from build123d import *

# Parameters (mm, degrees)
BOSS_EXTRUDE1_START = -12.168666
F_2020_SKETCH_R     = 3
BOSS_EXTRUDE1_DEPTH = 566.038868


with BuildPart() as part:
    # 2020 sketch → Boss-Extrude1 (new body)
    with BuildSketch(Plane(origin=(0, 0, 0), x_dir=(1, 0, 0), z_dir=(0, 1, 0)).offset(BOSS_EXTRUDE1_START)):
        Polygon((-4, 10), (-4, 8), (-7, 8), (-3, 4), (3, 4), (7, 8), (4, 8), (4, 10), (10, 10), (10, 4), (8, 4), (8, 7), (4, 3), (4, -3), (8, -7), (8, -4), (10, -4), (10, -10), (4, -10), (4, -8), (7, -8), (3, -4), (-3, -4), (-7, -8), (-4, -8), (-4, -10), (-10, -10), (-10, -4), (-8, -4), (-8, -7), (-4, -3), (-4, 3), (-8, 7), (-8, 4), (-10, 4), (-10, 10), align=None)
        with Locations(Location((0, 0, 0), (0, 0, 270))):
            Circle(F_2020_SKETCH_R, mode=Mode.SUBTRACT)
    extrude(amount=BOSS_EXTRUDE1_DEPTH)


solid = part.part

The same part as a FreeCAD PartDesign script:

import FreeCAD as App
import Part
import Sketcher
from FreeCAD import Vector
Q = App.Units.Quantity

doc = App.newDocument("Part")
body = doc.addObject("PartDesign::Body", "Body")

# Sketch on XZ plane
sketch1 = body.newObject("Sketcher::SketchObject", "Sketch")
sketch1.AttachmentSupport = (doc.getObject("XZ_Plane"), [""])
sketch1.MapMode = "FlatFace"
sketch1.AttachmentOffset = App.Placement(Vector(0, 0, 12.168666), App.Rotation())
sketch1.addGeometry([
    Part.LineSegment(Vector(-4, -8, 0), Vector(-4, -10, 0)),  # 0
    Part.LineSegment(Vector(-4, -10, 0), Vector(-10, -10, 0)),  # 1
    Part.LineSegment(Vector(-10, -10, 0), Vector(-10, -4, 0)),  # 2
    Part.LineSegment(Vector(-10, -4, 0), Vector(-8, -4, 0)),  # 3
    Part.LineSegment(Vector(-8, -4, 0), Vector(-8, -7, 0)),  # 4
    Part.LineSegment(Vector(-8, -7, 0), Vector(-4, -3, 0)),  # 5
    Part.LineSegment(Vector(-4, -3, 0), Vector(-4, 3, 0)),  # 6
    Part.LineSegment(Vector(-4, 3, 0), Vector(-8, 7, 0)),  # 7
    Part.LineSegment(Vector(-8, 7, 0), Vector(-8, 4, 0)),  # 8
    Part.LineSegment(Vector(-8, 4, 0), Vector(-10, 4, 0)),  # 9
    Part.LineSegment(Vector(-10, 4, 0), Vector(-10, 10, 0)),  # 10
    Part.LineSegment(Vector(-10, 10, 0), Vector(-4, 10, 0)),  # 11
    Part.LineSegment(Vector(-4, 10, 0), Vector(-4, 8, 0)),  # 12
    Part.LineSegment(Vector(-4, 8, 0), Vector(-7, 8, 0)),  # 13
    Part.LineSegment(Vector(-7, 8, 0), Vector(-3, 4, 0)),  # 14
    Part.LineSegment(Vector(-3, 4, 0), Vector(3, 4, 0)),  # 15
    Part.LineSegment(Vector(3, 4, 0), Vector(7, 8, 0)),  # 16
    Part.LineSegment(Vector(7, 8, 0), Vector(4, 8, 0)),  # 17
    Part.LineSegment(Vector(4, 8, 0), Vector(4, 10, 0)),  # 18
    Part.LineSegment(Vector(4, 10, 0), Vector(10, 10, 0)),  # 19
    Part.LineSegment(Vector(10, 10, 0), Vector(10, 4, 0)),  # 20
    Part.LineSegment(Vector(10, 4, 0), Vector(8, 4, 0)),  # 21
    Part.LineSegment(Vector(8, 4, 0), Vector(8, 7, 0)),  # 22
    Part.LineSegment(Vector(8, 7, 0), Vector(4, 3, 0)),  # 23
    Part.LineSegment(Vector(4, 3, 0), Vector(4, -3, 0)),  # 24
    Part.LineSegment(Vector(4, -3, 0), Vector(8, -7, 0)),  # 25
    Part.LineSegment(Vector(8, -7, 0), Vector(8, -4, 0)),  # 26
    Part.LineSegment(Vector(8, -4, 0), Vector(10, -4, 0)),  # 27
    Part.LineSegment(Vector(10, -4, 0), Vector(10, -10, 0)),  # 28
    Part.LineSegment(Vector(10, -10, 0), Vector(4, -10, 0)),  # 29
    Part.LineSegment(Vector(4, -10, 0), Vector(4, -8, 0)),  # 30
    Part.LineSegment(Vector(4, -8, 0), Vector(7, -8, 0)),  # 31
    Part.LineSegment(Vector(7, -8, 0), Vector(3, -4, 0)),  # 32
    Part.LineSegment(Vector(3, -4, 0), Vector(-3, -4, 0)),  # 33
    Part.LineSegment(Vector(-3, -4, 0), Vector(-7, -8, 0)),  # 34
    Part.LineSegment(Vector(-7, -8, 0), Vector(-4, -8, 0)),  # 35
    Part.Circle(Vector(0, 0, 0), Vector(0, 0, 1), 3),  # 36
], False)
sketch1.addConstraint([
    Sketcher.Constraint("Coincident", 0, 2, 1, 1),
    Sketcher.Constraint("Coincident", 1, 2, 2, 1),
    Sketcher.Constraint("Coincident", 2, 2, 3, 1),
    Sketcher.Constraint("Coincident", 3, 2, 4, 1),
    Sketcher.Constraint("Coincident", 4, 2, 5, 1),
    Sketcher.Constraint("Coincident", 5, 2, 6, 1),
    Sketcher.Constraint("Coincident", 6, 2, 7, 1),
    Sketcher.Constraint("Coincident", 7, 2, 8, 1),
    Sketcher.Constraint("Coincident", 8, 2, 9, 1),
    Sketcher.Constraint("Coincident", 9, 2, 10, 1),
    Sketcher.Constraint("Coincident", 10, 2, 11, 1),
    Sketcher.Constraint("Coincident", 11, 2, 12, 1),
    Sketcher.Constraint("Coincident", 12, 2, 13, 1),
    Sketcher.Constraint("Coincident", 13, 2, 14, 1),
    Sketcher.Constraint("Coincident", 14, 2, 15, 1),
    Sketcher.Constraint("Coincident", 15, 2, 16, 1),
    Sketcher.Constraint("Coincident", 16, 2, 17, 1),
    Sketcher.Constraint("Coincident", 17, 2, 18, 1),
    Sketcher.Constraint("Coincident", 18, 2, 19, 1),
    Sketcher.Constraint("Coincident", 19, 2, 20, 1),
    Sketcher.Constraint("Coincident", 20, 2, 21, 1),
    Sketcher.Constraint("Coincident", 21, 2, 22, 1),
    Sketcher.Constraint("Coincident", 22, 2, 23, 1),
    Sketcher.Constraint("Coincident", 23, 2, 24, 1),
    Sketcher.Constraint("Coincident", 24, 2, 25, 1),
    Sketcher.Constraint("Coincident", 25, 2, 26, 1),
    Sketcher.Constraint("Coincident", 26, 2, 27, 1),
    Sketcher.Constraint("Coincident", 27, 2, 28, 1),
    Sketcher.Constraint("Coincident", 28, 2, 29, 1),
    Sketcher.Constraint("Coincident", 29, 2, 30, 1),
    Sketcher.Constraint("Coincident", 30, 2, 31, 1),
    Sketcher.Constraint("Coincident", 31, 2, 32, 1),
    Sketcher.Constraint("Coincident", 32, 2, 33, 1),
    Sketcher.Constraint("Coincident", 33, 2, 34, 1),
    Sketcher.Constraint("Coincident", 34, 2, 35, 1),
    Sketcher.Constraint("Coincident", 35, 2, 0, 1),
    Sketcher.Constraint("Vertical", 0),
    Sketcher.Constraint("Horizontal", 1),
    Sketcher.Constraint("Vertical", 2),
    Sketcher.Constraint("Horizontal", 3),
    Sketcher.Constraint("Vertical", 4),
    Sketcher.Constraint("Vertical", 6),
    Sketcher.Constraint("Vertical", 8),
    Sketcher.Constraint("Horizontal", 9),
    Sketcher.Constraint("Vertical", 10),
    Sketcher.Constraint("Horizontal", 11),
    Sketcher.Constraint("Vertical", 12),
    Sketcher.Constraint("Horizontal", 13),
    Sketcher.Constraint("Horizontal", 15),
    Sketcher.Constraint("Horizontal", 17),
    Sketcher.Constraint("Vertical", 18),
    Sketcher.Constraint("Horizontal", 19),
    Sketcher.Constraint("Vertical", 20),
    Sketcher.Constraint("Horizontal", 21),
    Sketcher.Constraint("Vertical", 22),
    Sketcher.Constraint("Vertical", 24),
    Sketcher.Constraint("Vertical", 26),
    Sketcher.Constraint("Horizontal", 27),
    Sketcher.Constraint("Vertical", 28),
    Sketcher.Constraint("Horizontal", 29),
    Sketcher.Constraint("Vertical", 30),
    Sketcher.Constraint("Horizontal", 31),
    Sketcher.Constraint("Horizontal", 33),
    Sketcher.Constraint("Horizontal", 35),
    Sketcher.Constraint("Coincident", 36, 3, -1, 1),
    Sketcher.Constraint("Symmetric", 0, 2, 18, 2, -1, 1),
    Sketcher.Constraint("Symmetric", 2, 2, 20, 2, -1, 1),
    Sketcher.Constraint("Symmetric", 4, 2, 22, 2, -1, 1),
    Sketcher.Constraint("Symmetric", 5, 2, 23, 2, -1, 1),
    Sketcher.Constraint("Symmetric", 7, 2, 25, 2, -1, 1),
    Sketcher.Constraint("Symmetric", 9, 2, 27, 2, -1, 1),
    Sketcher.Constraint("Symmetric", 11, 2, 29, 2, -1, 1),
    Sketcher.Constraint("Symmetric", 13, 2, 31, 2, -1, 1),
    Sketcher.Constraint("Symmetric", 14, 2, 32, 2, -1, 1),
    Sketcher.Constraint("Symmetric", 16, 2, 34, 2, -1, 1),
    Sketcher.Constraint("Symmetric", 13, 2, 16, 2, -2),
    Sketcher.Constraint("Symmetric", 11, 2, 18, 2, -2),
    Sketcher.Constraint("Symmetric", 9, 2, 20, 2, -2),
    Sketcher.Constraint("Symmetric", 7, 2, 22, 2, -2),
    Sketcher.Constraint("Perpendicular", 5, 7),
    Sketcher.Constraint("Parallel", 7, 14),
    Sketcher.Constraint("Perpendicular", 14, 16),
    Sketcher.Constraint("Perpendicular", 23, 25),
    Sketcher.Constraint("Perpendicular", 32, 34),
    Sketcher.Constraint("Horizontal", 9, 2, 14, 2),
    Sketcher.Constraint("Horizontal", 6, 2, 23, 2),
    Sketcher.Constraint("Vertical", 0, 2, 5, 2),
    Sketcher.Constraint("Equal", 11, 15),
    Sketcher.Constraint("Equal", 27, 0),
    Sketcher.Constraint("Equal", 33, 2),
    Sketcher.Constraint("Equal", 35, 4),
    Sketcher.Constraint("Equal", 2, 6),
    Sketcher.Constraint("Diameter", 36, Q("6 mm")),
    Sketcher.Constraint("DistanceX", 1, 2, 1, 1, Q("6 mm")),
    Sketcher.Constraint("DistanceX", 3, 1, 3, 2, Q("2 mm")),
    Sketcher.Constraint("DistanceX", 13, 2, 13, 1, Q("3 mm")),
])
pad1 = body.newObject("PartDesign::Pad", "Pad")
pad1.Profile = sketch1
pad1.Length = 566.038868
pad1.Reversed = True

doc.recompute()
